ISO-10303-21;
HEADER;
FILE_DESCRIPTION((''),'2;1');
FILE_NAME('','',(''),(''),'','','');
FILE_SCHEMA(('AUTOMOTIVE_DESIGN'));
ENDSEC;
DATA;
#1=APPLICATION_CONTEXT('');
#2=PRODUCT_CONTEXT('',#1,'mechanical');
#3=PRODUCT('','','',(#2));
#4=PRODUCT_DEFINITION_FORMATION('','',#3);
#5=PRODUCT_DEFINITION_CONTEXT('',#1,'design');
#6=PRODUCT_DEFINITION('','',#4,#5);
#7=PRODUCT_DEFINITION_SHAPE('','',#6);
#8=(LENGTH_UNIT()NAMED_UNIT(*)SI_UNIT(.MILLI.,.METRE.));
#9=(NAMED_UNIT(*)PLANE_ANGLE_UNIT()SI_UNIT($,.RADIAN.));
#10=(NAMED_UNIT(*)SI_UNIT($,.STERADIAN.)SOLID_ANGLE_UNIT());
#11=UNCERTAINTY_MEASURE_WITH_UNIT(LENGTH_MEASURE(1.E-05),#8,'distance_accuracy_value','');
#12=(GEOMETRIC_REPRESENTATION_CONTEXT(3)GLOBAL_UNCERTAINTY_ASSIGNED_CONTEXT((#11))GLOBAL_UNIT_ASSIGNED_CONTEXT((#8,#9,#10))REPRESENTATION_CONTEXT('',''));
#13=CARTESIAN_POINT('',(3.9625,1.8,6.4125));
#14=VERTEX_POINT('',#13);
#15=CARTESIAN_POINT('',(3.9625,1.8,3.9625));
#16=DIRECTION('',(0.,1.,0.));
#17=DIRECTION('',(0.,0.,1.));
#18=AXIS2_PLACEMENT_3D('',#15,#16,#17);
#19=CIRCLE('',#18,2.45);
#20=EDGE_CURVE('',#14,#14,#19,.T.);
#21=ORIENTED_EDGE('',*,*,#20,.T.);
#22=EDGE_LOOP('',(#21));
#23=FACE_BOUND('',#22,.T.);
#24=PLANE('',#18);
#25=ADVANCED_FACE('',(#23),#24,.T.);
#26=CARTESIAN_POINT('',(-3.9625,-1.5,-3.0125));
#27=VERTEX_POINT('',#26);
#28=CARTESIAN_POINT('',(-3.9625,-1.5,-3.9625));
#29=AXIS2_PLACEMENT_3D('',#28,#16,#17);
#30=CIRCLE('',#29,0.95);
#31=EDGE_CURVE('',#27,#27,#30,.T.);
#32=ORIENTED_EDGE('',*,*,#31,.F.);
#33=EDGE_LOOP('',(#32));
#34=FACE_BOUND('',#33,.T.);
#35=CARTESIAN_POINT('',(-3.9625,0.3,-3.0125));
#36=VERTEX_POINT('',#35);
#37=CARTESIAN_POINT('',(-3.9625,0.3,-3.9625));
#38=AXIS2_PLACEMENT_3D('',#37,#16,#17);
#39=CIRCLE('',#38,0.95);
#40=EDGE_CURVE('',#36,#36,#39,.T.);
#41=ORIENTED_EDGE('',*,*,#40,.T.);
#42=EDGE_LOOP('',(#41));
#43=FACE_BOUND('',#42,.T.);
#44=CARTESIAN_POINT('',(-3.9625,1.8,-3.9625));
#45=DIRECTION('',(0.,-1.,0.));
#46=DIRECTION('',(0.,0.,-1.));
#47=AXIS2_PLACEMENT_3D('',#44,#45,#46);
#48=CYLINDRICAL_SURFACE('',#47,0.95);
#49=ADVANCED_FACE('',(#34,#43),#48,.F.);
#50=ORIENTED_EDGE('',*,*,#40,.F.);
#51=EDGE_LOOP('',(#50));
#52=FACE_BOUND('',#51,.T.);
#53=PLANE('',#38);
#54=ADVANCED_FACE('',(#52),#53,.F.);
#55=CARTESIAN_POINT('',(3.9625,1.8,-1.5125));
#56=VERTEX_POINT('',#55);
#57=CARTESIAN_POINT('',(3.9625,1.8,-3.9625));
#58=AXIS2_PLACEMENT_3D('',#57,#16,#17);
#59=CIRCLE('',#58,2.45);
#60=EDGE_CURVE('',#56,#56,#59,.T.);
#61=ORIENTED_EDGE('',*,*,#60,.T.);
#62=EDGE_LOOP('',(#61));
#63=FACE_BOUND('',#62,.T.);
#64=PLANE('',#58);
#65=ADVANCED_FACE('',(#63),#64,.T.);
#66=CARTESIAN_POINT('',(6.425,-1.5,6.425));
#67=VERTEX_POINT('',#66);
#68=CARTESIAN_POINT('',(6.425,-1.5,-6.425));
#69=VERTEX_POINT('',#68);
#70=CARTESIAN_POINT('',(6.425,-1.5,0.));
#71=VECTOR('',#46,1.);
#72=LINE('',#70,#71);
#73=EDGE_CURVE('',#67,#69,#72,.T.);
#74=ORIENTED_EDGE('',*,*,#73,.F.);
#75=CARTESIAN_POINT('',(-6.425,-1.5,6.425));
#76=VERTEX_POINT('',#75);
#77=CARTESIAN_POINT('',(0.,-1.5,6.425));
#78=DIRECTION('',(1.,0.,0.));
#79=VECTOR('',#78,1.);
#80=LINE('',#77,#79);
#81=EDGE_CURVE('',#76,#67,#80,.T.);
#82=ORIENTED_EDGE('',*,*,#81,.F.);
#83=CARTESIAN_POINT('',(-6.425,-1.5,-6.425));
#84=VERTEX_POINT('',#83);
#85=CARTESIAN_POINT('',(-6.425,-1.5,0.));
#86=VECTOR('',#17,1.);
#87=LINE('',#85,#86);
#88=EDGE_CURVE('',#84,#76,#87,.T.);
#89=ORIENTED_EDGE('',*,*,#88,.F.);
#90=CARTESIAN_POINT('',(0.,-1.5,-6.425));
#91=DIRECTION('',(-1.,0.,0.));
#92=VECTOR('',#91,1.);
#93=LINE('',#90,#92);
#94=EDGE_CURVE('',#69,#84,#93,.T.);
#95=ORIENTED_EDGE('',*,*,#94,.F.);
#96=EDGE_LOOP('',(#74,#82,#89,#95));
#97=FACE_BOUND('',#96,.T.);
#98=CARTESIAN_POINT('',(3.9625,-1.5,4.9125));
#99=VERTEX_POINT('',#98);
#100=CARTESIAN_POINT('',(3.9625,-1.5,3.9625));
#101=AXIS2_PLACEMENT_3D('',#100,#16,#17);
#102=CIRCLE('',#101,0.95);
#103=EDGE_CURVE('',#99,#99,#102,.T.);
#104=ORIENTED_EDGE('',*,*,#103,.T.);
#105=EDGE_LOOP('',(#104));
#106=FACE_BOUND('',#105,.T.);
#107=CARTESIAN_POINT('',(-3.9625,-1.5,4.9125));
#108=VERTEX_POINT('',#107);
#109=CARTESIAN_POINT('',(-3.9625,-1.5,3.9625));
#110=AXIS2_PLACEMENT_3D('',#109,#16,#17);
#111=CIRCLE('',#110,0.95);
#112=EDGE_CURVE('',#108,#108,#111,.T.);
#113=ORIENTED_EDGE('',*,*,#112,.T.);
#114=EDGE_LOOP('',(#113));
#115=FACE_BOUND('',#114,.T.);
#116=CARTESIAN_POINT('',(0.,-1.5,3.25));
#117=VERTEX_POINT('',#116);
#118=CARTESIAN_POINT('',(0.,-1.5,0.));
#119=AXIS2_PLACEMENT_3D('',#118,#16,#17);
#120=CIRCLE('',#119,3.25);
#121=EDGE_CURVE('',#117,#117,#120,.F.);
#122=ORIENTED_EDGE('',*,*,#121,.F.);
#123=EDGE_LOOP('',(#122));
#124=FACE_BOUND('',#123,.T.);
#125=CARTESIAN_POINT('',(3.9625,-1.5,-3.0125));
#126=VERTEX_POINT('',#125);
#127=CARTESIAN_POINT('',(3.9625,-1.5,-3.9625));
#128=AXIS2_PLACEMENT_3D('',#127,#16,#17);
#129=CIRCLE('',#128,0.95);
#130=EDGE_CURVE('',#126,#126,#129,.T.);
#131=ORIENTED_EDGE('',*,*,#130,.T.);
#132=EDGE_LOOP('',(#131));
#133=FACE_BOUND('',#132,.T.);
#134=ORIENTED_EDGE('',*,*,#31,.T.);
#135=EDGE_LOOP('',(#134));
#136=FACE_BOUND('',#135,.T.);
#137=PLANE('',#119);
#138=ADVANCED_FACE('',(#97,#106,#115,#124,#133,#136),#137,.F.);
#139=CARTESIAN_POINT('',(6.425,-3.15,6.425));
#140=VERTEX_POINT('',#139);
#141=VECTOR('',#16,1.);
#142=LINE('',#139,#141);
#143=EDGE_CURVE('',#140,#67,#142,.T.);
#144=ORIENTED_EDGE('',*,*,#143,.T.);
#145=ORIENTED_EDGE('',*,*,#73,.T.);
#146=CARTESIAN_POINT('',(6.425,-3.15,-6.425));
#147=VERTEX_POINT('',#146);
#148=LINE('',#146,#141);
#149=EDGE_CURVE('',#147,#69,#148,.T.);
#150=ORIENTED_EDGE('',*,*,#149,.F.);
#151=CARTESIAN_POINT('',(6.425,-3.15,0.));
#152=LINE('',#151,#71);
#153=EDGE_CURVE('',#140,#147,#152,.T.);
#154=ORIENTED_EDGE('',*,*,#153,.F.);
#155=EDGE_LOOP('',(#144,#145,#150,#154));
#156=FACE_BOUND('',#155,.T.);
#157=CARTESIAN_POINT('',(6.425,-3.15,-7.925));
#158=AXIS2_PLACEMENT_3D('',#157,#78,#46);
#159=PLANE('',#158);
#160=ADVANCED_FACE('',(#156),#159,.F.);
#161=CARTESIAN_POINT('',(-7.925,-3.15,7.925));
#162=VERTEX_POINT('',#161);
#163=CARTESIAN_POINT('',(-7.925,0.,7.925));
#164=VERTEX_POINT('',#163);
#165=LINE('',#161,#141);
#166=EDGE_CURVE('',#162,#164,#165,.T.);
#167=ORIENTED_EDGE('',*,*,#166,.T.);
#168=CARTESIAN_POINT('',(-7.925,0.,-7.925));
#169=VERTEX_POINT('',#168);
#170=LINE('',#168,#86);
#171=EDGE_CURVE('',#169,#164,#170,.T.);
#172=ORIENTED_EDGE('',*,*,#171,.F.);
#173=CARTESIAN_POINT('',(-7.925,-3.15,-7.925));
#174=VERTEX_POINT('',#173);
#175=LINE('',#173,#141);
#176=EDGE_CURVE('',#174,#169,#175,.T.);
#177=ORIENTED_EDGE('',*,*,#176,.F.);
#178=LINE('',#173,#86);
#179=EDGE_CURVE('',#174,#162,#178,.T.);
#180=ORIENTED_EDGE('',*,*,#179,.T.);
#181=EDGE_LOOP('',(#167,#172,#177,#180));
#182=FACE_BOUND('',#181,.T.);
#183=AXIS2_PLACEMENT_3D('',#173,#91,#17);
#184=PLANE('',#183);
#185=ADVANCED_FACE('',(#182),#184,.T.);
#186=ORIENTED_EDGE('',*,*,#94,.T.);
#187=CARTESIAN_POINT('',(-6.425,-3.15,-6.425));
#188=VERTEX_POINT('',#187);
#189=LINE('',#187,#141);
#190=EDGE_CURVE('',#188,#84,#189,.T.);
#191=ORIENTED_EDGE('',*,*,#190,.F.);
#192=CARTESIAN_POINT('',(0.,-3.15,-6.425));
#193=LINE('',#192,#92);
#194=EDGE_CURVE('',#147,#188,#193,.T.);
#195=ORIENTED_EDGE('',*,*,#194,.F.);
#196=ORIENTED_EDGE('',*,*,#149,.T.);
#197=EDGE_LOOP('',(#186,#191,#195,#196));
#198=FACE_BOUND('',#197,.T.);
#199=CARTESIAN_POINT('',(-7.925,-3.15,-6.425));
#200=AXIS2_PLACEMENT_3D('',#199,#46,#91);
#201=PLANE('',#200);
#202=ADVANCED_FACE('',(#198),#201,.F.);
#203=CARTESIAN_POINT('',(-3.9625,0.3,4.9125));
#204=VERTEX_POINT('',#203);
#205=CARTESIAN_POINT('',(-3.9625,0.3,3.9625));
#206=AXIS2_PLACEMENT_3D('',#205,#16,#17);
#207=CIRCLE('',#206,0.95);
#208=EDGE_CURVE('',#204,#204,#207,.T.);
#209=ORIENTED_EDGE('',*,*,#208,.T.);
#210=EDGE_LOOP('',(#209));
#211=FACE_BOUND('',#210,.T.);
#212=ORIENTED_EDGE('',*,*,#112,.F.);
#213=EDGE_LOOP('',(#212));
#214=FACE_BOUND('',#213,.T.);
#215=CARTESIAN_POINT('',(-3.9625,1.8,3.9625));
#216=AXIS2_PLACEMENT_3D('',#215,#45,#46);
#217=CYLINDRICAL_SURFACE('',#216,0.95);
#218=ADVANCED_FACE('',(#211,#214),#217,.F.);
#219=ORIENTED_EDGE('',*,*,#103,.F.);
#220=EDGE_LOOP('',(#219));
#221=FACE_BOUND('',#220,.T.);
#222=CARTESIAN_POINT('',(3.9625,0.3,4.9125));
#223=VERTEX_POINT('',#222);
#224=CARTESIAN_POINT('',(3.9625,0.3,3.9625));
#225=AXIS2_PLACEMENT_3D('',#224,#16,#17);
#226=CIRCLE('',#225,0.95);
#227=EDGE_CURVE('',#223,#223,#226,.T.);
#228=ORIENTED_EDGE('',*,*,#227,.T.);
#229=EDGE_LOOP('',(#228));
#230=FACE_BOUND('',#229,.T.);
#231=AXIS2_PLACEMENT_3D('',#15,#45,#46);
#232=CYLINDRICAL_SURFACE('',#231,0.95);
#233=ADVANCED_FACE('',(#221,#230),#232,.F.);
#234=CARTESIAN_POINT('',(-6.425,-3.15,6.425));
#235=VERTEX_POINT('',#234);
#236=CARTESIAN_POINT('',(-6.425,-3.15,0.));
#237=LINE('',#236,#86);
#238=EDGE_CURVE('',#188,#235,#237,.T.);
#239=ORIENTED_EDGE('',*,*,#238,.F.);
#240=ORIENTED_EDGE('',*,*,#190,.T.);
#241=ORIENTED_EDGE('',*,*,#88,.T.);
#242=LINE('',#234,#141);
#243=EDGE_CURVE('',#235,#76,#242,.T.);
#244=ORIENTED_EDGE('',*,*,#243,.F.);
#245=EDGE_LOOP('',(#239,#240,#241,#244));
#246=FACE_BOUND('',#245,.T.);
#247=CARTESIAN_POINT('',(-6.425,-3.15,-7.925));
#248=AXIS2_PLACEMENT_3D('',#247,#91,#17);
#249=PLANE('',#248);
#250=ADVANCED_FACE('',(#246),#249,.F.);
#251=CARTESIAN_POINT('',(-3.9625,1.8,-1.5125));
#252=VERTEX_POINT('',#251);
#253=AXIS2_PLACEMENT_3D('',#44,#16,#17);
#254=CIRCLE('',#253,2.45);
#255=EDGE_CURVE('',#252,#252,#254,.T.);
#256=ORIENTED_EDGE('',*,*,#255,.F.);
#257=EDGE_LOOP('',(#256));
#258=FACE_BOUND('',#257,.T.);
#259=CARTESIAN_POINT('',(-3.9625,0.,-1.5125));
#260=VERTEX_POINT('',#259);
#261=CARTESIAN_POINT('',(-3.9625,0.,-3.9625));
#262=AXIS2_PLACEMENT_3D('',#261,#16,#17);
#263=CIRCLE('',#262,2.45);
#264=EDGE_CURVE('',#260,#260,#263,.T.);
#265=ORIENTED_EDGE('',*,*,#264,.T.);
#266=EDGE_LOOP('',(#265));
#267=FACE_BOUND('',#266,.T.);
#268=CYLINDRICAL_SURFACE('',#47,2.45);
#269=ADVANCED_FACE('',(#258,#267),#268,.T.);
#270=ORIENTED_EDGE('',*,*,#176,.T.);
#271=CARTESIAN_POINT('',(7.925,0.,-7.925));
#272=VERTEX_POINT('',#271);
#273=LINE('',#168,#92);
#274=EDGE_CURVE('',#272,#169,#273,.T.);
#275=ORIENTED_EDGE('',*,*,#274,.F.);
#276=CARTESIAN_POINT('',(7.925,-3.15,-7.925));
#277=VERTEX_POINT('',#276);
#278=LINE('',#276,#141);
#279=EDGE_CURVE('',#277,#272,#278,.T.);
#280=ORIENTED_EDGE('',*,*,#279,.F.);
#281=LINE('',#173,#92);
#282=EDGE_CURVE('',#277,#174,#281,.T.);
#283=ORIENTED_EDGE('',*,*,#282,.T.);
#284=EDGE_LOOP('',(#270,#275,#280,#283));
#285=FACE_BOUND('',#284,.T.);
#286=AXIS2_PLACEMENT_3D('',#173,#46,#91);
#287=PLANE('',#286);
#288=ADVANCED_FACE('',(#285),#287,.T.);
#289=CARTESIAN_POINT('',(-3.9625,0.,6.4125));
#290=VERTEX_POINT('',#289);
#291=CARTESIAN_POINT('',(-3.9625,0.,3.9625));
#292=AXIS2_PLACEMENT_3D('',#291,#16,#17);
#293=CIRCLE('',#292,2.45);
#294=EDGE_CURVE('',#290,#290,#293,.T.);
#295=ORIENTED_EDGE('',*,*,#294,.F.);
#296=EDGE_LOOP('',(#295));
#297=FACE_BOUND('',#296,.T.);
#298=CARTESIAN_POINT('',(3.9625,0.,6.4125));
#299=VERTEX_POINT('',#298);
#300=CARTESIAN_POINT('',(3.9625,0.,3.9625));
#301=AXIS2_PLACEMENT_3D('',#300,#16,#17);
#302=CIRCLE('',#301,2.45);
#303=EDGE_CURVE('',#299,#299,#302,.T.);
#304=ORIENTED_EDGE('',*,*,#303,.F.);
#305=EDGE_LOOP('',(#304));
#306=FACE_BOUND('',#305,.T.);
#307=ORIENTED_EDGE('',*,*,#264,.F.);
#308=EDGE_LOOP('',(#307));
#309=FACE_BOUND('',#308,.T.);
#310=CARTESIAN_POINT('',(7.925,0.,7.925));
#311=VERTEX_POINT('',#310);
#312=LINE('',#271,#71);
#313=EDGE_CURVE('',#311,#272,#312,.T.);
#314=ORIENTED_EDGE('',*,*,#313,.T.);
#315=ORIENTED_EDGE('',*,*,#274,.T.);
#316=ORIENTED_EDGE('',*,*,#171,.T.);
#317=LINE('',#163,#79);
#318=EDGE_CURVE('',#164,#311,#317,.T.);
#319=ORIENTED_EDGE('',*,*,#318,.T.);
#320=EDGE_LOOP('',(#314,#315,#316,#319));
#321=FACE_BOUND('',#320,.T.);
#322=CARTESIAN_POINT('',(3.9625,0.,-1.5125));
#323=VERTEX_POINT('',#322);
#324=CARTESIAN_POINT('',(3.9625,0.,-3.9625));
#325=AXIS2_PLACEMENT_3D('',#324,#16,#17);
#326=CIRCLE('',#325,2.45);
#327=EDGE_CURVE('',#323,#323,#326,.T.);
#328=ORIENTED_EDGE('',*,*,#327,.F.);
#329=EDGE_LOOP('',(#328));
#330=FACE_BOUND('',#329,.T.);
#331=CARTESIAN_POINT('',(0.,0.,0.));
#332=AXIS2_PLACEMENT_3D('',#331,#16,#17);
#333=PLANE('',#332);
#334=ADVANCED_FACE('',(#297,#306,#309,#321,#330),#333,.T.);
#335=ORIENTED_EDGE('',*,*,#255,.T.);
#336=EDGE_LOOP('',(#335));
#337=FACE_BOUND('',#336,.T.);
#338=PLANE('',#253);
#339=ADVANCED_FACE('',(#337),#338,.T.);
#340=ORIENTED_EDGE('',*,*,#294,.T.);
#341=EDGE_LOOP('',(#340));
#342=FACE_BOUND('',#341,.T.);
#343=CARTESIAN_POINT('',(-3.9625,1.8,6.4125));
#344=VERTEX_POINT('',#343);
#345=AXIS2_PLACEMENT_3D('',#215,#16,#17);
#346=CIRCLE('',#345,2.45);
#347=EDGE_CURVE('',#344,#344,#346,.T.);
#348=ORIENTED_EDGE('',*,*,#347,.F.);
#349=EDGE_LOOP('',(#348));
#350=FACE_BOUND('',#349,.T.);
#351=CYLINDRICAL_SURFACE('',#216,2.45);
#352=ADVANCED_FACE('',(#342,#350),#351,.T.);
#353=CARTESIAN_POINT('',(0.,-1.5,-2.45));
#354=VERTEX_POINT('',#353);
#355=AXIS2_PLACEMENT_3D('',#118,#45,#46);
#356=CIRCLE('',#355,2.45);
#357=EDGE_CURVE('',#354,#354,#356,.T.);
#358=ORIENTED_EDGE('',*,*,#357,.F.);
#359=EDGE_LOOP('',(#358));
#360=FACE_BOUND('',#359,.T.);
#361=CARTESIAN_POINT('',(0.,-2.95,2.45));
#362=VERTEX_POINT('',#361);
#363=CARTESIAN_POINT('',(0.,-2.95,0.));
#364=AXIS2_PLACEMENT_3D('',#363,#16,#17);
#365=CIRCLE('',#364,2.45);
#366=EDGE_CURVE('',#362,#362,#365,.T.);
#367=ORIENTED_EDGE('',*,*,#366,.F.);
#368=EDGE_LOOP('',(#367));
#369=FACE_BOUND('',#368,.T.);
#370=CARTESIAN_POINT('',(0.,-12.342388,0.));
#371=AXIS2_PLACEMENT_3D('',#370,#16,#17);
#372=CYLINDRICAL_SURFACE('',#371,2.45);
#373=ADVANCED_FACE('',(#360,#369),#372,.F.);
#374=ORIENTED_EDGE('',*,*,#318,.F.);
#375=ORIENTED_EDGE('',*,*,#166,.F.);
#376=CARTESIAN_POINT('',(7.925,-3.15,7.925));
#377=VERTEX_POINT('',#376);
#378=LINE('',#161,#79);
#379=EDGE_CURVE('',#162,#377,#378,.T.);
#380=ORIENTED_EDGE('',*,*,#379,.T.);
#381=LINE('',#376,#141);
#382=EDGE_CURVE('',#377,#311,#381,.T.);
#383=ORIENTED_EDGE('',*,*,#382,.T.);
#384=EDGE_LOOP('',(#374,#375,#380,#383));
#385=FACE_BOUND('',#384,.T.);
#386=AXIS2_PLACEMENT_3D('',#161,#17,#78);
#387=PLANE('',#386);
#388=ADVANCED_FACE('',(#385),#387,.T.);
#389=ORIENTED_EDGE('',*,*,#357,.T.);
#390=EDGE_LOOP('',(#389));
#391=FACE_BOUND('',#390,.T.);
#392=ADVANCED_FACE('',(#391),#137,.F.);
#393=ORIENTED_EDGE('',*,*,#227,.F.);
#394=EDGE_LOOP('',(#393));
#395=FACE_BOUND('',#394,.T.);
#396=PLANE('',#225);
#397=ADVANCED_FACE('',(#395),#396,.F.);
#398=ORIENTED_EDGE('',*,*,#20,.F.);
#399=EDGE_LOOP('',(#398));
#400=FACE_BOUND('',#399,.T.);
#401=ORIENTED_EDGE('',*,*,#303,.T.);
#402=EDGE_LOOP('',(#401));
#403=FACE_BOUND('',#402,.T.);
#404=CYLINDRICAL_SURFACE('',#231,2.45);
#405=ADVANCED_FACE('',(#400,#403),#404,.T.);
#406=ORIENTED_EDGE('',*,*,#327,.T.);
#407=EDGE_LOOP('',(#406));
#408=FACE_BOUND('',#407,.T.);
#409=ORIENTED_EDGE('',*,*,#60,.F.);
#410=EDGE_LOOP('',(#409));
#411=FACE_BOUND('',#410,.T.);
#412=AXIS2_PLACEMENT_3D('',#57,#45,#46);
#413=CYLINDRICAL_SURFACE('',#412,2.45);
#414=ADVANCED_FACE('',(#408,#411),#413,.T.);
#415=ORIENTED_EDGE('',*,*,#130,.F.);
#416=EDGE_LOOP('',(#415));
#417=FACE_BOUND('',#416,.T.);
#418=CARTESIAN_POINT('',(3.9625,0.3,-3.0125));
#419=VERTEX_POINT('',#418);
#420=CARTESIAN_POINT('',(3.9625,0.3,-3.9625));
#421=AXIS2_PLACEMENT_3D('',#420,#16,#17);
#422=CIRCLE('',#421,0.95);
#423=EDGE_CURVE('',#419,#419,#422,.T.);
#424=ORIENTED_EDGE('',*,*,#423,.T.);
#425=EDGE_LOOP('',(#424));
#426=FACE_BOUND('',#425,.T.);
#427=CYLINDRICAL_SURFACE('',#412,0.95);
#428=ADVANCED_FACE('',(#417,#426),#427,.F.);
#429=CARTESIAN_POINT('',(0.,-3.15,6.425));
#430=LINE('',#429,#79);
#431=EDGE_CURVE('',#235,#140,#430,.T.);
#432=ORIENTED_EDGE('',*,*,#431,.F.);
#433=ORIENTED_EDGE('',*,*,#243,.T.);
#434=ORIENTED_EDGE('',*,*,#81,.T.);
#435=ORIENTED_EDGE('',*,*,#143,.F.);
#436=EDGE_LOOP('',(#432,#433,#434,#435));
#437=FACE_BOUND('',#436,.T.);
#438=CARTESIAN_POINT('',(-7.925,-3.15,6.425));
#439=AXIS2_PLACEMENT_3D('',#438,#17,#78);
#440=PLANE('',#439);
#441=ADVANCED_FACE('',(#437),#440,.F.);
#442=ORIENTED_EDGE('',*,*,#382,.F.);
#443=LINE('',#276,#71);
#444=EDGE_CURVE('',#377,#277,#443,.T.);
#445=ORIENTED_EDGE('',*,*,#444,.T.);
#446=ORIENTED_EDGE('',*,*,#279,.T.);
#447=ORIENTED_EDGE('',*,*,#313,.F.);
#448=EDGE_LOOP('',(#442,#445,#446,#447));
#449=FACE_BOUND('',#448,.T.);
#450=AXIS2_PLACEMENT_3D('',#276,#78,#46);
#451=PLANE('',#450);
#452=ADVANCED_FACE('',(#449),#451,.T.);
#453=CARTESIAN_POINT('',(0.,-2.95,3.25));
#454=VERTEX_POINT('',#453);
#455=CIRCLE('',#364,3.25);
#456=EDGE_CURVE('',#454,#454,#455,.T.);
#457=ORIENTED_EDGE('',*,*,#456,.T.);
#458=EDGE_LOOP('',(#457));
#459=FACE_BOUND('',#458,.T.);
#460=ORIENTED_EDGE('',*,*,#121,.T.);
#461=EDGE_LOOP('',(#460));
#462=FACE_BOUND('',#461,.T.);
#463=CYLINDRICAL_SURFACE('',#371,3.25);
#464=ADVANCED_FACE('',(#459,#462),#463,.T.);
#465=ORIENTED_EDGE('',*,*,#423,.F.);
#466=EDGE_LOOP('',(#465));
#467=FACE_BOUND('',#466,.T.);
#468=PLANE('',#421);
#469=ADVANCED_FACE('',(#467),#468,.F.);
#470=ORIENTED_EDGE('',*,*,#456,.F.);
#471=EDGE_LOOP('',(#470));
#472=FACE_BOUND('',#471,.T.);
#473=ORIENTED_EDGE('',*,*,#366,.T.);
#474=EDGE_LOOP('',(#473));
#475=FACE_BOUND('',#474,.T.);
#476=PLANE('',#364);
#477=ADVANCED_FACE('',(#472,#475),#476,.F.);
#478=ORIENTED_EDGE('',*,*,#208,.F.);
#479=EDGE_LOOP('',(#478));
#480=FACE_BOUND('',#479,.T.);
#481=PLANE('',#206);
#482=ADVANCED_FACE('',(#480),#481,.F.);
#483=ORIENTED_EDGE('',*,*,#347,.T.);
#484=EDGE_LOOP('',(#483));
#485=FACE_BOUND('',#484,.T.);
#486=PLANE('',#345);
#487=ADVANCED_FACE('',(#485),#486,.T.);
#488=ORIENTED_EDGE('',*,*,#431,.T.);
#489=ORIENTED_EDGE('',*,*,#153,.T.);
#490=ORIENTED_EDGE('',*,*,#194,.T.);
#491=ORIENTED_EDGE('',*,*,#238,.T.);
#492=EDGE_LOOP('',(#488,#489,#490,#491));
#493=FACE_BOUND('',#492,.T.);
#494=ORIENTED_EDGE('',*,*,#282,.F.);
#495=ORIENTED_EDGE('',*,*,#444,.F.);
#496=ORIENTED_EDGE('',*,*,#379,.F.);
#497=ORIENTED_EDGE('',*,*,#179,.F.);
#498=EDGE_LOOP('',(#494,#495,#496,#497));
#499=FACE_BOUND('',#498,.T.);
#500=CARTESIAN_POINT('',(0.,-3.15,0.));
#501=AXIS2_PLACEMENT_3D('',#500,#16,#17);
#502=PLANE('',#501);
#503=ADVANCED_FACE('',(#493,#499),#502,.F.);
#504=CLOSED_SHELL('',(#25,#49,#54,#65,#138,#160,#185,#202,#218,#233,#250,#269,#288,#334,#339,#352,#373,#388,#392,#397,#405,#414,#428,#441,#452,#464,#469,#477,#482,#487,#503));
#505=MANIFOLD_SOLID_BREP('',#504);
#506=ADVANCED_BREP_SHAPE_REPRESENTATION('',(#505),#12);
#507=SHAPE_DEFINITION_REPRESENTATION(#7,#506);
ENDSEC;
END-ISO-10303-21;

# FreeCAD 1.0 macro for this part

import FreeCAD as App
import Part
import Sketcher
Q = App.Units.Quantity


def faces_at(feature, points):
    """Names of the faces that lie closest to the given points."""
    faces = feature.Shape.Faces
    near = lambda p: min(range(len(faces)), key=lambda i: faces[i].distToShape(Part.Vertex(*p))[0])
    return sorted({f"Face{near(p) + 1}" for p in points})


def add_polygon(sketch, points):
    """Adds a closed chain of lines whose ends are joined by coincident constraints."""
    first, n = sketch.GeometryCount, len(points)
    for a, b in zip(points, points[1:] + points[:1]):
        sketch.addGeometry(Part.LineSegment(App.Vector(*a, 0), App.Vector(*b, 0)), False)
    for i in range(n):
        sketch.addConstraint(Sketcher.Constraint("Coincident", first + i, 2, first + (i + 1) % n, 1))

doc = App.newDocument("Part")
body = doc.addObject("PartDesign::Body", "Body")

# Sketch on XZ plane
sketch1 = body.newObject("Sketcher::SketchObject", "Sketch")
sketch1.AttachmentSupport = (doc.getObject("XZ_Plane"), [""])
sketch1.MapMode = "FlatFace"
add_polygon(sketch1, [(-7.925, -7.925), (-7.925, 7.925), (7.925, 7.925), (7.925, -7.925)])  # lines 0-3
sketch1.addConstraint([
    Sketcher.Constraint("Vertical", 0),
    Sketcher.Constraint("Horizontal", 1),
    Sketcher.Constraint("Vertical", 2),
    Sketcher.Constraint("Horizontal", 3),
    Sketcher.Constraint("Symmetric", 0, 2, 2, 2, -1, 1),
    Sketcher.Constraint("Equal", 3, 0),
    Sketcher.Constraint("DistanceX", 1, 1, 1, 2, Q("15.85 mm")),
])
pad1 = body.newObject("PartDesign::Pad", "Pad")
pad1.Profile = sketch1
pad1.Length = 3.15

# Sketch on XZ plane
sketch2 = body.newObject("Sketcher::SketchObject", "Sketch001")
sketch2.AttachmentSupport = (doc.getObject("XZ_Plane"), [""])
sketch2.MapMode = "FlatFace"
sketch2.addGeometry([
    Part.Circle(App.Vector(-3.9625, -3.9625, 0), App.Vector(0, 0, 1), 2.45),
    Part.Circle(App.Vector(-3.9625, 3.9625, 0), App.Vector(0, 0, 1), 2.45),
    Part.Circle(App.Vector(3.9625, -3.9625, 0), App.Vector(0, 0, 1), 2.45),
    Part.Circle(App.Vector(3.9625, 3.9625, 0), App.Vector(0, 0, 1), 2.45),
], False)
sketch2.addConstraint([
    Sketcher.Constraint("Equal", 0, 1),
    Sketcher.Constraint("Equal", 1, 2),
    Sketcher.Constraint("Equal", 2, 3),
    Sketcher.Constraint("Symmetric", 1, 3, 2, 3, -1, 1),
    Sketcher.Constraint("Symmetric", 0, 3, 3, 3, -1, 1),
    Sketcher.Constraint("Symmetric", 0, 3, 2, 3, -2),
    Sketcher.Constraint("Diameter", 0, Q("4.9 mm")),
    Sketcher.Constraint("DistanceY", 0, 3, 1, 3, Q("7.925 mm")),
    Sketcher.Constraint("DistanceX", 0, 3, 2, 3, Q("7.925 mm")),
])
pad2 = body.newObject("PartDesign::Pad", "Pad001")
pad2.Profile = sketch2
pad2.Length = 1.8
pad2.Reversed = True
doc.recompute()

thickness = body.newObject("PartDesign::Thickness", "Thickness")
thickness.Base = (pad2, faces_at(pad2, [(0, -3.15, 0)]))
thickness.Value = 1.5
thickness.Reversed = True
thickness.Join = "Intersection"

# Sketch on XZ plane
sketch3 = body.newObject("Sketcher::SketchObject", "Sketch002")
sketch3.AttachmentSupport = (doc.getObject("XZ_Plane"), [""])
sketch3.MapMode = "FlatFace"
sketch3.AttachmentOffset = App.Placement(App.Vector(0, 0, 1.5), App.Rotation())
sketch3.addGeometry([
    Part.Circle(App.Vector(0, 0, 0), App.Vector(0, 0, 1), 3.25),
    Part.Circle(App.Vector(0, 0, 0), App.Vector(0, 0, 1), 2.45),
], False)
sketch3.addConstraint([
    Sketcher.Constraint("Coincident", 0, 3, -1, 1),
    Sketcher.Constraint("Coincident", 1, 3, -1, 1),
    Sketcher.Constraint("Diameter", 0, Q("6.5 mm")),
    Sketcher.Constraint("Diameter", 1, Q("4.9 mm")),
])
pad3 = body.newObject("PartDesign::Pad", "Pad002")
pad3.Profile = sketch3
pad3.Length = 1.45

doc.recompute()
